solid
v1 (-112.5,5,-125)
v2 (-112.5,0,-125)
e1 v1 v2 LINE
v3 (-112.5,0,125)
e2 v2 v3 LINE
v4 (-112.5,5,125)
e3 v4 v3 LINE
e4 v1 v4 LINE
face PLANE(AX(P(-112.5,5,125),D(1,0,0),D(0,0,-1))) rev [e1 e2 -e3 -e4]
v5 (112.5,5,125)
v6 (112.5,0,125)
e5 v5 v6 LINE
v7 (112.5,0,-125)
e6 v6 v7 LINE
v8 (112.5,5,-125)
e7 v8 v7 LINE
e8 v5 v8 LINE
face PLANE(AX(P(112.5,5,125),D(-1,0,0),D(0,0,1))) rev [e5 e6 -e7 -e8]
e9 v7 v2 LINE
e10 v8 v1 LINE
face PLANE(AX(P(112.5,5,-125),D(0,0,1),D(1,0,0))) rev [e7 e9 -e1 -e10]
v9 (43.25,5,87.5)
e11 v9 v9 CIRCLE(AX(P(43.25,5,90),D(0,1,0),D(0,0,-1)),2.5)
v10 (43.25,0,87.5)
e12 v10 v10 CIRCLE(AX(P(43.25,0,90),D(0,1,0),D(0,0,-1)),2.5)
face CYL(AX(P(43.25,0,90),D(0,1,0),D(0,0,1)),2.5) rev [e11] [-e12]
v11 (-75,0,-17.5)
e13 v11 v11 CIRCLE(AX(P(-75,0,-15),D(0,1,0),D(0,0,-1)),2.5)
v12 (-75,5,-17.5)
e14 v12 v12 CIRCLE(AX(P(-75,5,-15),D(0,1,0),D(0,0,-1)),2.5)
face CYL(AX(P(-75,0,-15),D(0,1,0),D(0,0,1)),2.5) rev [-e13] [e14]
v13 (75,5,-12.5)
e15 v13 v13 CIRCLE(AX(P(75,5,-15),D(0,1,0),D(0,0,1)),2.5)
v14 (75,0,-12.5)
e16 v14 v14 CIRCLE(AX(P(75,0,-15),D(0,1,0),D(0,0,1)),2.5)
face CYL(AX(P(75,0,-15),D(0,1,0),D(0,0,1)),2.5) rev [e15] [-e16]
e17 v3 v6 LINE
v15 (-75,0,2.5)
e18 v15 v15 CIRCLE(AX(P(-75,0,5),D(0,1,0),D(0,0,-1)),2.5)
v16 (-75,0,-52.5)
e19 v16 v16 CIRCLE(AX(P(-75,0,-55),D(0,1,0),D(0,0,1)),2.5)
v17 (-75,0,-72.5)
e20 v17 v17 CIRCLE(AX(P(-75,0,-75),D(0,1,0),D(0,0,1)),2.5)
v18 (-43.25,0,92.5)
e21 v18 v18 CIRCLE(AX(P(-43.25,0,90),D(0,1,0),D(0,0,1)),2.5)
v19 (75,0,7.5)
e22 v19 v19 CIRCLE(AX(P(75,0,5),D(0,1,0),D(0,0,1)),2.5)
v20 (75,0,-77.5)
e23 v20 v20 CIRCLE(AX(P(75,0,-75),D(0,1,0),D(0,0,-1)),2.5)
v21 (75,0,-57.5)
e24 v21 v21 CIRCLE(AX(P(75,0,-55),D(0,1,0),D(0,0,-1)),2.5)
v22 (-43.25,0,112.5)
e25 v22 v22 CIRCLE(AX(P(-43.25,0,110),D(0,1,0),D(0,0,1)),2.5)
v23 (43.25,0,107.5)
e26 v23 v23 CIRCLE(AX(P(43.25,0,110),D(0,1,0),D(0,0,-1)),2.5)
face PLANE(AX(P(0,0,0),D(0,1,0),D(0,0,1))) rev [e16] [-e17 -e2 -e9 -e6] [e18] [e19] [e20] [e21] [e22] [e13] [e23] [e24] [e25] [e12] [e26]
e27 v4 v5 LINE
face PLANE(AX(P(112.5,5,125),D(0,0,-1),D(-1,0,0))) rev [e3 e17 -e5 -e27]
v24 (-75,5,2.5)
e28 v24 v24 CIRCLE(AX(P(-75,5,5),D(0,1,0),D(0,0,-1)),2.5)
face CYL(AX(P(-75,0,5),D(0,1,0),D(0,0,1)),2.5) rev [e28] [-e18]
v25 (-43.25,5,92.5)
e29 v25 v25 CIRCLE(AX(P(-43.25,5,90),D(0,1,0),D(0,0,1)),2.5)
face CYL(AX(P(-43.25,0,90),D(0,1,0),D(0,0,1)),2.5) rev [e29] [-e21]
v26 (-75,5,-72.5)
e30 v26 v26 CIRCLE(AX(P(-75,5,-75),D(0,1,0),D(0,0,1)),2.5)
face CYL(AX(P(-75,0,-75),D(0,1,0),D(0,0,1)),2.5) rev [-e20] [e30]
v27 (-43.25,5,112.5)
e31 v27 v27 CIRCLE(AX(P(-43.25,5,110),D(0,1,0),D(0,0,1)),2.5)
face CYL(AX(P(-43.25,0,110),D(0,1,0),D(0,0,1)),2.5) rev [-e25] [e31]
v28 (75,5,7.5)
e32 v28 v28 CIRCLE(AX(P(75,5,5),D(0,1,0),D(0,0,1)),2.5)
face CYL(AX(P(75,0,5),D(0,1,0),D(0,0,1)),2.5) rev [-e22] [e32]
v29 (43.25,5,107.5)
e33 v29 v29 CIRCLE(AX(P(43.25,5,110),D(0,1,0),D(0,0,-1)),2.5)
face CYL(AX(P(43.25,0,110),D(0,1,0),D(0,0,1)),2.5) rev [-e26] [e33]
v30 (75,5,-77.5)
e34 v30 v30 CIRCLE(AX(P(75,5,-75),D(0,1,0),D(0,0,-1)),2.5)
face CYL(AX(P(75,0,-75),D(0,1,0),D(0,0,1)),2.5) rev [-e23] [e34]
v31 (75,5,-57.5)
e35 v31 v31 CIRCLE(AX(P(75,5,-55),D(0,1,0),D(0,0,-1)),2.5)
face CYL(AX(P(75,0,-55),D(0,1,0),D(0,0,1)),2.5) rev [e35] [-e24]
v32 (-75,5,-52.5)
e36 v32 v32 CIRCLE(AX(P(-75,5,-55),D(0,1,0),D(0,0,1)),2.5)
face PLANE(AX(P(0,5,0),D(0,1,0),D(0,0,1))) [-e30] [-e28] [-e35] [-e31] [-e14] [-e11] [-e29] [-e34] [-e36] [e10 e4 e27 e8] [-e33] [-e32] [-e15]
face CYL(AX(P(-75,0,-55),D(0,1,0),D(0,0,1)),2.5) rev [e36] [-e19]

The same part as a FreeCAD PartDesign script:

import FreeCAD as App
import Part
import Sketcher


def add_polygon(sketch, points):
    """Adds a closed chain of lines whose ends are joined by coincident constraints."""
    first, n = sketch.GeometryCount, len(points)
    for a, b in zip(points, points[1:] + points[:1]):
        sketch.addGeometry(Part.LineSegment(App.Vector(*a, 0), App.Vector(*b, 0)), False)
    for i in range(n):
        sketch.addConstraint(Sketcher.Constraint("Coincident", first + i, 2, first + (i + 1) % n, 1))

doc = App.newDocument("Part")
body = doc.addObject("PartDesign::Body", "Body")

# Sketch on XZ plane
sketch1 = doc.addObject("Sketcher::SketchObject", "Sketch")
body.addObject(sketch1)
sketch1.AttachmentSupport = (doc.XZ_Plane, [""])
sketch1.MapMode = "FlatFace"
add_polygon(sketch1, [(-112, -125), (-112, 125), (112, 125), (112, -125)])  # lines 0-3
sketch1.addConstraint(Sketcher.Constraint("Vertical", 0))
sketch1.addConstraint(Sketcher.Constraint("Horizontal", 1))
sketch1.addConstraint(Sketcher.Constraint("Vertical", 2))
sketch1.addConstraint(Sketcher.Constraint("Horizontal", 3))
sketch1.addConstraint(Sketcher.Constraint("Symmetric", 0, 2, 2, 2, -1, 1))
sketch1.addConstraint(Sketcher.Constraint("DistanceX", 1, 1, 1, 2, 225.0))
sketch1.addConstraint(Sketcher.Constraint("DistanceY", 0, 1, 0, 2, 250.0))
pad1 = doc.addObject("PartDesign::Pad", "Pad")
body.addObject(pad1)
pad1.Profile = sketch1
pad1.Length = 5
pad1.Reversed = True

# Sketch on XZ plane
sketch2 = doc.addObject("Sketcher::SketchObject", "Sketch001")
body.addObject(sketch2)
sketch2.AttachmentSupport = (doc.XZ_Plane, [""])
sketch2.MapMode = "FlatFace"
sketch2.AttachmentOffset = App.Placement(App.Vector(0, 0, -5), App.Rotation())
sketch2.addGeometry(Part.Circle(App.Vector(-75, -75, 0), App.Vector(0, 0, 1), 2.5), False)
sketch2.addGeometry(Part.Circle(App.Vector(-75, -55, 0), App.Vector(0, 0, 1), 2.5), False)
sketch2.addGeometry(Part.Circle(App.Vector(75, -55, 0), App.Vector(0, 0, 1), 2.5), False)
sketch2.addGeometry(Part.Circle(App.Vector(75, -75, 0), App.Vector(0, 0, 1), 2.5), False)
sketch2.addGeometry(Part.Circle(App.Vector(75, 5, 0), App.Vector(0, 0, 1), 2.5), False)
sketch2.addGeometry(Part.Circle(App.Vector(75, -15, 0), App.Vector(0, 0, 1), 2.5), False)
sketch2.addGeometry(Part.Circle(App.Vector(-75, 5, 0), App.Vector(0, 0, 1), 2.5), False)
sketch2.addGeometry(Part.Circle(App.Vector(-75, -15, 0), App.Vector(0, 0, 1), 2.5), False)
sketch2.addConstraint(Sketcher.Constraint("Equal", 0, 1))
sketch2.addConstraint(Sketcher.Constraint("Equal", 1, 2))
sketch2.addConstraint(Sketcher.Constraint("Equal", 2, 3))
sketch2.addConstraint(Sketcher.Constraint("Equal", 3, 4))
sketch2.addConstraint(Sketcher.Constraint("Equal", 4, 5))
sketch2.addConstraint(Sketcher.Constraint("Equal", 5, 6))
sketch2.addConstraint(Sketcher.Constraint("Equal", 6, 7))
sketch2.addConstraint(Sketcher.Constraint("Symmetric", 1, 3, 2, 3, -2))
sketch2.addConstraint(Sketcher.Constraint("Symmetric", 0, 3, 3, 3, -2))
sketch2.addConstraint(Sketcher.Constraint("Symmetric", 4, 3, 6, 3, -2))
sketch2.addConstraint(Sketcher.Constraint("Symmetric", 5, 3, 7, 3, -2))
sketch2.addConstraint(Sketcher.Constraint("Vertical", 0, 3, 1, 3))
sketch2.addConstraint(Sketcher.Constraint("Vertical", 3, 3, 4, 3))
sketch2.addConstraint(Sketcher.Constraint("Vertical", 4, 3, 5, 3))
sketch2.addConstraint(Sketcher.Constraint("Diameter", 0, 5.0))
sketch2.addConstraint(Sketcher.Constraint("DistanceX", 0, 3, -1, 1, 75.0))
sketch2.addConstraint(Sketcher.Constraint("DistanceY", 0, 3, -1, 1, 75.0))
sketch2.addConstraint(Sketcher.Constraint("DistanceY", 1, 3, -1, 1, 55.0))
sketch2.addConstraint(Sketcher.Constraint("DistanceY", -1, 1, 4, 3, 5.0))
sketch2.addConstraint(Sketcher.Constraint("DistanceY", 5, 3, -1, 1, 15.0))
pocket1 = doc.addObject("PartDesign::Pocket", "Pocket")
body.addObject(pocket1)
pocket1.Profile = sketch2
pocket1.Type = "ThroughAll"
pocket1.Reversed = True

# Sketch on XZ plane
sketch3 = doc.addObject("Sketcher::SketchObject", "Sketch002")
body.addObject(sketch3)
sketch3.AttachmentSupport = (doc.XZ_Plane, [""])
sketch3.MapMode = "FlatFace"
sketch3.AttachmentOffset = App.Placement(App.Vector(0, 0, -5), App.Rotation())
sketch3.addGeometry(Part.Circle(App.Vector(-43.2, 90, 0), App.Vector(0, 0, 1), 2.5), False)
sketch3.addGeometry(Part.Circle(App.Vector(-43.2, 110, 0), App.Vector(0, 0, 1), 2.5), False)
sketch3.addGeometry(Part.Circle(App.Vector(43.2, 90, 0), App.Vector(0, 0, 1), 2.5), False)
sketch3.addGeometry(Part.Circle(App.Vector(43.2, 110, 0), App.Vector(0, 0, 1), 2.5), False)
sketch3.addConstraint(Sketcher.Constraint("Equal", 0, 1))
sketch3.addConstraint(Sketcher.Constraint("Equal", 1, 2))
sketch3.addConstraint(Sketcher.Constraint("Equal", 2, 3))
sketch3.addConstraint(Sketcher.Constraint("Symmetric", 0, 3, 2, 3, -2))
sketch3.addConstraint(Sketcher.Constraint("Symmetric", 1, 3, 3, 3, -2))
sketch3.addConstraint(Sketcher.Constraint("Vertical", 0, 3, 1, 3))
sketch3.addConstraint(Sketcher.Constraint("Diameter", 0, 5.0))
sketch3.addConstraint(Sketcher.Constraint("DistanceY", -1, 1, 0, 3, 90.0))
sketch3.addConstraint(Sketcher.Constraint("DistanceY", -1, 1, 1, 3, 110.0))
sketch3.addConstraint(Sketcher.Constraint("DistanceX", 0, 3, 2, 3, 86.5))
pocket2 = doc.addObject("PartDesign::Pocket", "Pocket001")
body.addObject(pocket2)
pocket2.Profile = sketch3
pocket2.Type = "ThroughAll"
pocket2.Reversed = True

doc.recompute()
